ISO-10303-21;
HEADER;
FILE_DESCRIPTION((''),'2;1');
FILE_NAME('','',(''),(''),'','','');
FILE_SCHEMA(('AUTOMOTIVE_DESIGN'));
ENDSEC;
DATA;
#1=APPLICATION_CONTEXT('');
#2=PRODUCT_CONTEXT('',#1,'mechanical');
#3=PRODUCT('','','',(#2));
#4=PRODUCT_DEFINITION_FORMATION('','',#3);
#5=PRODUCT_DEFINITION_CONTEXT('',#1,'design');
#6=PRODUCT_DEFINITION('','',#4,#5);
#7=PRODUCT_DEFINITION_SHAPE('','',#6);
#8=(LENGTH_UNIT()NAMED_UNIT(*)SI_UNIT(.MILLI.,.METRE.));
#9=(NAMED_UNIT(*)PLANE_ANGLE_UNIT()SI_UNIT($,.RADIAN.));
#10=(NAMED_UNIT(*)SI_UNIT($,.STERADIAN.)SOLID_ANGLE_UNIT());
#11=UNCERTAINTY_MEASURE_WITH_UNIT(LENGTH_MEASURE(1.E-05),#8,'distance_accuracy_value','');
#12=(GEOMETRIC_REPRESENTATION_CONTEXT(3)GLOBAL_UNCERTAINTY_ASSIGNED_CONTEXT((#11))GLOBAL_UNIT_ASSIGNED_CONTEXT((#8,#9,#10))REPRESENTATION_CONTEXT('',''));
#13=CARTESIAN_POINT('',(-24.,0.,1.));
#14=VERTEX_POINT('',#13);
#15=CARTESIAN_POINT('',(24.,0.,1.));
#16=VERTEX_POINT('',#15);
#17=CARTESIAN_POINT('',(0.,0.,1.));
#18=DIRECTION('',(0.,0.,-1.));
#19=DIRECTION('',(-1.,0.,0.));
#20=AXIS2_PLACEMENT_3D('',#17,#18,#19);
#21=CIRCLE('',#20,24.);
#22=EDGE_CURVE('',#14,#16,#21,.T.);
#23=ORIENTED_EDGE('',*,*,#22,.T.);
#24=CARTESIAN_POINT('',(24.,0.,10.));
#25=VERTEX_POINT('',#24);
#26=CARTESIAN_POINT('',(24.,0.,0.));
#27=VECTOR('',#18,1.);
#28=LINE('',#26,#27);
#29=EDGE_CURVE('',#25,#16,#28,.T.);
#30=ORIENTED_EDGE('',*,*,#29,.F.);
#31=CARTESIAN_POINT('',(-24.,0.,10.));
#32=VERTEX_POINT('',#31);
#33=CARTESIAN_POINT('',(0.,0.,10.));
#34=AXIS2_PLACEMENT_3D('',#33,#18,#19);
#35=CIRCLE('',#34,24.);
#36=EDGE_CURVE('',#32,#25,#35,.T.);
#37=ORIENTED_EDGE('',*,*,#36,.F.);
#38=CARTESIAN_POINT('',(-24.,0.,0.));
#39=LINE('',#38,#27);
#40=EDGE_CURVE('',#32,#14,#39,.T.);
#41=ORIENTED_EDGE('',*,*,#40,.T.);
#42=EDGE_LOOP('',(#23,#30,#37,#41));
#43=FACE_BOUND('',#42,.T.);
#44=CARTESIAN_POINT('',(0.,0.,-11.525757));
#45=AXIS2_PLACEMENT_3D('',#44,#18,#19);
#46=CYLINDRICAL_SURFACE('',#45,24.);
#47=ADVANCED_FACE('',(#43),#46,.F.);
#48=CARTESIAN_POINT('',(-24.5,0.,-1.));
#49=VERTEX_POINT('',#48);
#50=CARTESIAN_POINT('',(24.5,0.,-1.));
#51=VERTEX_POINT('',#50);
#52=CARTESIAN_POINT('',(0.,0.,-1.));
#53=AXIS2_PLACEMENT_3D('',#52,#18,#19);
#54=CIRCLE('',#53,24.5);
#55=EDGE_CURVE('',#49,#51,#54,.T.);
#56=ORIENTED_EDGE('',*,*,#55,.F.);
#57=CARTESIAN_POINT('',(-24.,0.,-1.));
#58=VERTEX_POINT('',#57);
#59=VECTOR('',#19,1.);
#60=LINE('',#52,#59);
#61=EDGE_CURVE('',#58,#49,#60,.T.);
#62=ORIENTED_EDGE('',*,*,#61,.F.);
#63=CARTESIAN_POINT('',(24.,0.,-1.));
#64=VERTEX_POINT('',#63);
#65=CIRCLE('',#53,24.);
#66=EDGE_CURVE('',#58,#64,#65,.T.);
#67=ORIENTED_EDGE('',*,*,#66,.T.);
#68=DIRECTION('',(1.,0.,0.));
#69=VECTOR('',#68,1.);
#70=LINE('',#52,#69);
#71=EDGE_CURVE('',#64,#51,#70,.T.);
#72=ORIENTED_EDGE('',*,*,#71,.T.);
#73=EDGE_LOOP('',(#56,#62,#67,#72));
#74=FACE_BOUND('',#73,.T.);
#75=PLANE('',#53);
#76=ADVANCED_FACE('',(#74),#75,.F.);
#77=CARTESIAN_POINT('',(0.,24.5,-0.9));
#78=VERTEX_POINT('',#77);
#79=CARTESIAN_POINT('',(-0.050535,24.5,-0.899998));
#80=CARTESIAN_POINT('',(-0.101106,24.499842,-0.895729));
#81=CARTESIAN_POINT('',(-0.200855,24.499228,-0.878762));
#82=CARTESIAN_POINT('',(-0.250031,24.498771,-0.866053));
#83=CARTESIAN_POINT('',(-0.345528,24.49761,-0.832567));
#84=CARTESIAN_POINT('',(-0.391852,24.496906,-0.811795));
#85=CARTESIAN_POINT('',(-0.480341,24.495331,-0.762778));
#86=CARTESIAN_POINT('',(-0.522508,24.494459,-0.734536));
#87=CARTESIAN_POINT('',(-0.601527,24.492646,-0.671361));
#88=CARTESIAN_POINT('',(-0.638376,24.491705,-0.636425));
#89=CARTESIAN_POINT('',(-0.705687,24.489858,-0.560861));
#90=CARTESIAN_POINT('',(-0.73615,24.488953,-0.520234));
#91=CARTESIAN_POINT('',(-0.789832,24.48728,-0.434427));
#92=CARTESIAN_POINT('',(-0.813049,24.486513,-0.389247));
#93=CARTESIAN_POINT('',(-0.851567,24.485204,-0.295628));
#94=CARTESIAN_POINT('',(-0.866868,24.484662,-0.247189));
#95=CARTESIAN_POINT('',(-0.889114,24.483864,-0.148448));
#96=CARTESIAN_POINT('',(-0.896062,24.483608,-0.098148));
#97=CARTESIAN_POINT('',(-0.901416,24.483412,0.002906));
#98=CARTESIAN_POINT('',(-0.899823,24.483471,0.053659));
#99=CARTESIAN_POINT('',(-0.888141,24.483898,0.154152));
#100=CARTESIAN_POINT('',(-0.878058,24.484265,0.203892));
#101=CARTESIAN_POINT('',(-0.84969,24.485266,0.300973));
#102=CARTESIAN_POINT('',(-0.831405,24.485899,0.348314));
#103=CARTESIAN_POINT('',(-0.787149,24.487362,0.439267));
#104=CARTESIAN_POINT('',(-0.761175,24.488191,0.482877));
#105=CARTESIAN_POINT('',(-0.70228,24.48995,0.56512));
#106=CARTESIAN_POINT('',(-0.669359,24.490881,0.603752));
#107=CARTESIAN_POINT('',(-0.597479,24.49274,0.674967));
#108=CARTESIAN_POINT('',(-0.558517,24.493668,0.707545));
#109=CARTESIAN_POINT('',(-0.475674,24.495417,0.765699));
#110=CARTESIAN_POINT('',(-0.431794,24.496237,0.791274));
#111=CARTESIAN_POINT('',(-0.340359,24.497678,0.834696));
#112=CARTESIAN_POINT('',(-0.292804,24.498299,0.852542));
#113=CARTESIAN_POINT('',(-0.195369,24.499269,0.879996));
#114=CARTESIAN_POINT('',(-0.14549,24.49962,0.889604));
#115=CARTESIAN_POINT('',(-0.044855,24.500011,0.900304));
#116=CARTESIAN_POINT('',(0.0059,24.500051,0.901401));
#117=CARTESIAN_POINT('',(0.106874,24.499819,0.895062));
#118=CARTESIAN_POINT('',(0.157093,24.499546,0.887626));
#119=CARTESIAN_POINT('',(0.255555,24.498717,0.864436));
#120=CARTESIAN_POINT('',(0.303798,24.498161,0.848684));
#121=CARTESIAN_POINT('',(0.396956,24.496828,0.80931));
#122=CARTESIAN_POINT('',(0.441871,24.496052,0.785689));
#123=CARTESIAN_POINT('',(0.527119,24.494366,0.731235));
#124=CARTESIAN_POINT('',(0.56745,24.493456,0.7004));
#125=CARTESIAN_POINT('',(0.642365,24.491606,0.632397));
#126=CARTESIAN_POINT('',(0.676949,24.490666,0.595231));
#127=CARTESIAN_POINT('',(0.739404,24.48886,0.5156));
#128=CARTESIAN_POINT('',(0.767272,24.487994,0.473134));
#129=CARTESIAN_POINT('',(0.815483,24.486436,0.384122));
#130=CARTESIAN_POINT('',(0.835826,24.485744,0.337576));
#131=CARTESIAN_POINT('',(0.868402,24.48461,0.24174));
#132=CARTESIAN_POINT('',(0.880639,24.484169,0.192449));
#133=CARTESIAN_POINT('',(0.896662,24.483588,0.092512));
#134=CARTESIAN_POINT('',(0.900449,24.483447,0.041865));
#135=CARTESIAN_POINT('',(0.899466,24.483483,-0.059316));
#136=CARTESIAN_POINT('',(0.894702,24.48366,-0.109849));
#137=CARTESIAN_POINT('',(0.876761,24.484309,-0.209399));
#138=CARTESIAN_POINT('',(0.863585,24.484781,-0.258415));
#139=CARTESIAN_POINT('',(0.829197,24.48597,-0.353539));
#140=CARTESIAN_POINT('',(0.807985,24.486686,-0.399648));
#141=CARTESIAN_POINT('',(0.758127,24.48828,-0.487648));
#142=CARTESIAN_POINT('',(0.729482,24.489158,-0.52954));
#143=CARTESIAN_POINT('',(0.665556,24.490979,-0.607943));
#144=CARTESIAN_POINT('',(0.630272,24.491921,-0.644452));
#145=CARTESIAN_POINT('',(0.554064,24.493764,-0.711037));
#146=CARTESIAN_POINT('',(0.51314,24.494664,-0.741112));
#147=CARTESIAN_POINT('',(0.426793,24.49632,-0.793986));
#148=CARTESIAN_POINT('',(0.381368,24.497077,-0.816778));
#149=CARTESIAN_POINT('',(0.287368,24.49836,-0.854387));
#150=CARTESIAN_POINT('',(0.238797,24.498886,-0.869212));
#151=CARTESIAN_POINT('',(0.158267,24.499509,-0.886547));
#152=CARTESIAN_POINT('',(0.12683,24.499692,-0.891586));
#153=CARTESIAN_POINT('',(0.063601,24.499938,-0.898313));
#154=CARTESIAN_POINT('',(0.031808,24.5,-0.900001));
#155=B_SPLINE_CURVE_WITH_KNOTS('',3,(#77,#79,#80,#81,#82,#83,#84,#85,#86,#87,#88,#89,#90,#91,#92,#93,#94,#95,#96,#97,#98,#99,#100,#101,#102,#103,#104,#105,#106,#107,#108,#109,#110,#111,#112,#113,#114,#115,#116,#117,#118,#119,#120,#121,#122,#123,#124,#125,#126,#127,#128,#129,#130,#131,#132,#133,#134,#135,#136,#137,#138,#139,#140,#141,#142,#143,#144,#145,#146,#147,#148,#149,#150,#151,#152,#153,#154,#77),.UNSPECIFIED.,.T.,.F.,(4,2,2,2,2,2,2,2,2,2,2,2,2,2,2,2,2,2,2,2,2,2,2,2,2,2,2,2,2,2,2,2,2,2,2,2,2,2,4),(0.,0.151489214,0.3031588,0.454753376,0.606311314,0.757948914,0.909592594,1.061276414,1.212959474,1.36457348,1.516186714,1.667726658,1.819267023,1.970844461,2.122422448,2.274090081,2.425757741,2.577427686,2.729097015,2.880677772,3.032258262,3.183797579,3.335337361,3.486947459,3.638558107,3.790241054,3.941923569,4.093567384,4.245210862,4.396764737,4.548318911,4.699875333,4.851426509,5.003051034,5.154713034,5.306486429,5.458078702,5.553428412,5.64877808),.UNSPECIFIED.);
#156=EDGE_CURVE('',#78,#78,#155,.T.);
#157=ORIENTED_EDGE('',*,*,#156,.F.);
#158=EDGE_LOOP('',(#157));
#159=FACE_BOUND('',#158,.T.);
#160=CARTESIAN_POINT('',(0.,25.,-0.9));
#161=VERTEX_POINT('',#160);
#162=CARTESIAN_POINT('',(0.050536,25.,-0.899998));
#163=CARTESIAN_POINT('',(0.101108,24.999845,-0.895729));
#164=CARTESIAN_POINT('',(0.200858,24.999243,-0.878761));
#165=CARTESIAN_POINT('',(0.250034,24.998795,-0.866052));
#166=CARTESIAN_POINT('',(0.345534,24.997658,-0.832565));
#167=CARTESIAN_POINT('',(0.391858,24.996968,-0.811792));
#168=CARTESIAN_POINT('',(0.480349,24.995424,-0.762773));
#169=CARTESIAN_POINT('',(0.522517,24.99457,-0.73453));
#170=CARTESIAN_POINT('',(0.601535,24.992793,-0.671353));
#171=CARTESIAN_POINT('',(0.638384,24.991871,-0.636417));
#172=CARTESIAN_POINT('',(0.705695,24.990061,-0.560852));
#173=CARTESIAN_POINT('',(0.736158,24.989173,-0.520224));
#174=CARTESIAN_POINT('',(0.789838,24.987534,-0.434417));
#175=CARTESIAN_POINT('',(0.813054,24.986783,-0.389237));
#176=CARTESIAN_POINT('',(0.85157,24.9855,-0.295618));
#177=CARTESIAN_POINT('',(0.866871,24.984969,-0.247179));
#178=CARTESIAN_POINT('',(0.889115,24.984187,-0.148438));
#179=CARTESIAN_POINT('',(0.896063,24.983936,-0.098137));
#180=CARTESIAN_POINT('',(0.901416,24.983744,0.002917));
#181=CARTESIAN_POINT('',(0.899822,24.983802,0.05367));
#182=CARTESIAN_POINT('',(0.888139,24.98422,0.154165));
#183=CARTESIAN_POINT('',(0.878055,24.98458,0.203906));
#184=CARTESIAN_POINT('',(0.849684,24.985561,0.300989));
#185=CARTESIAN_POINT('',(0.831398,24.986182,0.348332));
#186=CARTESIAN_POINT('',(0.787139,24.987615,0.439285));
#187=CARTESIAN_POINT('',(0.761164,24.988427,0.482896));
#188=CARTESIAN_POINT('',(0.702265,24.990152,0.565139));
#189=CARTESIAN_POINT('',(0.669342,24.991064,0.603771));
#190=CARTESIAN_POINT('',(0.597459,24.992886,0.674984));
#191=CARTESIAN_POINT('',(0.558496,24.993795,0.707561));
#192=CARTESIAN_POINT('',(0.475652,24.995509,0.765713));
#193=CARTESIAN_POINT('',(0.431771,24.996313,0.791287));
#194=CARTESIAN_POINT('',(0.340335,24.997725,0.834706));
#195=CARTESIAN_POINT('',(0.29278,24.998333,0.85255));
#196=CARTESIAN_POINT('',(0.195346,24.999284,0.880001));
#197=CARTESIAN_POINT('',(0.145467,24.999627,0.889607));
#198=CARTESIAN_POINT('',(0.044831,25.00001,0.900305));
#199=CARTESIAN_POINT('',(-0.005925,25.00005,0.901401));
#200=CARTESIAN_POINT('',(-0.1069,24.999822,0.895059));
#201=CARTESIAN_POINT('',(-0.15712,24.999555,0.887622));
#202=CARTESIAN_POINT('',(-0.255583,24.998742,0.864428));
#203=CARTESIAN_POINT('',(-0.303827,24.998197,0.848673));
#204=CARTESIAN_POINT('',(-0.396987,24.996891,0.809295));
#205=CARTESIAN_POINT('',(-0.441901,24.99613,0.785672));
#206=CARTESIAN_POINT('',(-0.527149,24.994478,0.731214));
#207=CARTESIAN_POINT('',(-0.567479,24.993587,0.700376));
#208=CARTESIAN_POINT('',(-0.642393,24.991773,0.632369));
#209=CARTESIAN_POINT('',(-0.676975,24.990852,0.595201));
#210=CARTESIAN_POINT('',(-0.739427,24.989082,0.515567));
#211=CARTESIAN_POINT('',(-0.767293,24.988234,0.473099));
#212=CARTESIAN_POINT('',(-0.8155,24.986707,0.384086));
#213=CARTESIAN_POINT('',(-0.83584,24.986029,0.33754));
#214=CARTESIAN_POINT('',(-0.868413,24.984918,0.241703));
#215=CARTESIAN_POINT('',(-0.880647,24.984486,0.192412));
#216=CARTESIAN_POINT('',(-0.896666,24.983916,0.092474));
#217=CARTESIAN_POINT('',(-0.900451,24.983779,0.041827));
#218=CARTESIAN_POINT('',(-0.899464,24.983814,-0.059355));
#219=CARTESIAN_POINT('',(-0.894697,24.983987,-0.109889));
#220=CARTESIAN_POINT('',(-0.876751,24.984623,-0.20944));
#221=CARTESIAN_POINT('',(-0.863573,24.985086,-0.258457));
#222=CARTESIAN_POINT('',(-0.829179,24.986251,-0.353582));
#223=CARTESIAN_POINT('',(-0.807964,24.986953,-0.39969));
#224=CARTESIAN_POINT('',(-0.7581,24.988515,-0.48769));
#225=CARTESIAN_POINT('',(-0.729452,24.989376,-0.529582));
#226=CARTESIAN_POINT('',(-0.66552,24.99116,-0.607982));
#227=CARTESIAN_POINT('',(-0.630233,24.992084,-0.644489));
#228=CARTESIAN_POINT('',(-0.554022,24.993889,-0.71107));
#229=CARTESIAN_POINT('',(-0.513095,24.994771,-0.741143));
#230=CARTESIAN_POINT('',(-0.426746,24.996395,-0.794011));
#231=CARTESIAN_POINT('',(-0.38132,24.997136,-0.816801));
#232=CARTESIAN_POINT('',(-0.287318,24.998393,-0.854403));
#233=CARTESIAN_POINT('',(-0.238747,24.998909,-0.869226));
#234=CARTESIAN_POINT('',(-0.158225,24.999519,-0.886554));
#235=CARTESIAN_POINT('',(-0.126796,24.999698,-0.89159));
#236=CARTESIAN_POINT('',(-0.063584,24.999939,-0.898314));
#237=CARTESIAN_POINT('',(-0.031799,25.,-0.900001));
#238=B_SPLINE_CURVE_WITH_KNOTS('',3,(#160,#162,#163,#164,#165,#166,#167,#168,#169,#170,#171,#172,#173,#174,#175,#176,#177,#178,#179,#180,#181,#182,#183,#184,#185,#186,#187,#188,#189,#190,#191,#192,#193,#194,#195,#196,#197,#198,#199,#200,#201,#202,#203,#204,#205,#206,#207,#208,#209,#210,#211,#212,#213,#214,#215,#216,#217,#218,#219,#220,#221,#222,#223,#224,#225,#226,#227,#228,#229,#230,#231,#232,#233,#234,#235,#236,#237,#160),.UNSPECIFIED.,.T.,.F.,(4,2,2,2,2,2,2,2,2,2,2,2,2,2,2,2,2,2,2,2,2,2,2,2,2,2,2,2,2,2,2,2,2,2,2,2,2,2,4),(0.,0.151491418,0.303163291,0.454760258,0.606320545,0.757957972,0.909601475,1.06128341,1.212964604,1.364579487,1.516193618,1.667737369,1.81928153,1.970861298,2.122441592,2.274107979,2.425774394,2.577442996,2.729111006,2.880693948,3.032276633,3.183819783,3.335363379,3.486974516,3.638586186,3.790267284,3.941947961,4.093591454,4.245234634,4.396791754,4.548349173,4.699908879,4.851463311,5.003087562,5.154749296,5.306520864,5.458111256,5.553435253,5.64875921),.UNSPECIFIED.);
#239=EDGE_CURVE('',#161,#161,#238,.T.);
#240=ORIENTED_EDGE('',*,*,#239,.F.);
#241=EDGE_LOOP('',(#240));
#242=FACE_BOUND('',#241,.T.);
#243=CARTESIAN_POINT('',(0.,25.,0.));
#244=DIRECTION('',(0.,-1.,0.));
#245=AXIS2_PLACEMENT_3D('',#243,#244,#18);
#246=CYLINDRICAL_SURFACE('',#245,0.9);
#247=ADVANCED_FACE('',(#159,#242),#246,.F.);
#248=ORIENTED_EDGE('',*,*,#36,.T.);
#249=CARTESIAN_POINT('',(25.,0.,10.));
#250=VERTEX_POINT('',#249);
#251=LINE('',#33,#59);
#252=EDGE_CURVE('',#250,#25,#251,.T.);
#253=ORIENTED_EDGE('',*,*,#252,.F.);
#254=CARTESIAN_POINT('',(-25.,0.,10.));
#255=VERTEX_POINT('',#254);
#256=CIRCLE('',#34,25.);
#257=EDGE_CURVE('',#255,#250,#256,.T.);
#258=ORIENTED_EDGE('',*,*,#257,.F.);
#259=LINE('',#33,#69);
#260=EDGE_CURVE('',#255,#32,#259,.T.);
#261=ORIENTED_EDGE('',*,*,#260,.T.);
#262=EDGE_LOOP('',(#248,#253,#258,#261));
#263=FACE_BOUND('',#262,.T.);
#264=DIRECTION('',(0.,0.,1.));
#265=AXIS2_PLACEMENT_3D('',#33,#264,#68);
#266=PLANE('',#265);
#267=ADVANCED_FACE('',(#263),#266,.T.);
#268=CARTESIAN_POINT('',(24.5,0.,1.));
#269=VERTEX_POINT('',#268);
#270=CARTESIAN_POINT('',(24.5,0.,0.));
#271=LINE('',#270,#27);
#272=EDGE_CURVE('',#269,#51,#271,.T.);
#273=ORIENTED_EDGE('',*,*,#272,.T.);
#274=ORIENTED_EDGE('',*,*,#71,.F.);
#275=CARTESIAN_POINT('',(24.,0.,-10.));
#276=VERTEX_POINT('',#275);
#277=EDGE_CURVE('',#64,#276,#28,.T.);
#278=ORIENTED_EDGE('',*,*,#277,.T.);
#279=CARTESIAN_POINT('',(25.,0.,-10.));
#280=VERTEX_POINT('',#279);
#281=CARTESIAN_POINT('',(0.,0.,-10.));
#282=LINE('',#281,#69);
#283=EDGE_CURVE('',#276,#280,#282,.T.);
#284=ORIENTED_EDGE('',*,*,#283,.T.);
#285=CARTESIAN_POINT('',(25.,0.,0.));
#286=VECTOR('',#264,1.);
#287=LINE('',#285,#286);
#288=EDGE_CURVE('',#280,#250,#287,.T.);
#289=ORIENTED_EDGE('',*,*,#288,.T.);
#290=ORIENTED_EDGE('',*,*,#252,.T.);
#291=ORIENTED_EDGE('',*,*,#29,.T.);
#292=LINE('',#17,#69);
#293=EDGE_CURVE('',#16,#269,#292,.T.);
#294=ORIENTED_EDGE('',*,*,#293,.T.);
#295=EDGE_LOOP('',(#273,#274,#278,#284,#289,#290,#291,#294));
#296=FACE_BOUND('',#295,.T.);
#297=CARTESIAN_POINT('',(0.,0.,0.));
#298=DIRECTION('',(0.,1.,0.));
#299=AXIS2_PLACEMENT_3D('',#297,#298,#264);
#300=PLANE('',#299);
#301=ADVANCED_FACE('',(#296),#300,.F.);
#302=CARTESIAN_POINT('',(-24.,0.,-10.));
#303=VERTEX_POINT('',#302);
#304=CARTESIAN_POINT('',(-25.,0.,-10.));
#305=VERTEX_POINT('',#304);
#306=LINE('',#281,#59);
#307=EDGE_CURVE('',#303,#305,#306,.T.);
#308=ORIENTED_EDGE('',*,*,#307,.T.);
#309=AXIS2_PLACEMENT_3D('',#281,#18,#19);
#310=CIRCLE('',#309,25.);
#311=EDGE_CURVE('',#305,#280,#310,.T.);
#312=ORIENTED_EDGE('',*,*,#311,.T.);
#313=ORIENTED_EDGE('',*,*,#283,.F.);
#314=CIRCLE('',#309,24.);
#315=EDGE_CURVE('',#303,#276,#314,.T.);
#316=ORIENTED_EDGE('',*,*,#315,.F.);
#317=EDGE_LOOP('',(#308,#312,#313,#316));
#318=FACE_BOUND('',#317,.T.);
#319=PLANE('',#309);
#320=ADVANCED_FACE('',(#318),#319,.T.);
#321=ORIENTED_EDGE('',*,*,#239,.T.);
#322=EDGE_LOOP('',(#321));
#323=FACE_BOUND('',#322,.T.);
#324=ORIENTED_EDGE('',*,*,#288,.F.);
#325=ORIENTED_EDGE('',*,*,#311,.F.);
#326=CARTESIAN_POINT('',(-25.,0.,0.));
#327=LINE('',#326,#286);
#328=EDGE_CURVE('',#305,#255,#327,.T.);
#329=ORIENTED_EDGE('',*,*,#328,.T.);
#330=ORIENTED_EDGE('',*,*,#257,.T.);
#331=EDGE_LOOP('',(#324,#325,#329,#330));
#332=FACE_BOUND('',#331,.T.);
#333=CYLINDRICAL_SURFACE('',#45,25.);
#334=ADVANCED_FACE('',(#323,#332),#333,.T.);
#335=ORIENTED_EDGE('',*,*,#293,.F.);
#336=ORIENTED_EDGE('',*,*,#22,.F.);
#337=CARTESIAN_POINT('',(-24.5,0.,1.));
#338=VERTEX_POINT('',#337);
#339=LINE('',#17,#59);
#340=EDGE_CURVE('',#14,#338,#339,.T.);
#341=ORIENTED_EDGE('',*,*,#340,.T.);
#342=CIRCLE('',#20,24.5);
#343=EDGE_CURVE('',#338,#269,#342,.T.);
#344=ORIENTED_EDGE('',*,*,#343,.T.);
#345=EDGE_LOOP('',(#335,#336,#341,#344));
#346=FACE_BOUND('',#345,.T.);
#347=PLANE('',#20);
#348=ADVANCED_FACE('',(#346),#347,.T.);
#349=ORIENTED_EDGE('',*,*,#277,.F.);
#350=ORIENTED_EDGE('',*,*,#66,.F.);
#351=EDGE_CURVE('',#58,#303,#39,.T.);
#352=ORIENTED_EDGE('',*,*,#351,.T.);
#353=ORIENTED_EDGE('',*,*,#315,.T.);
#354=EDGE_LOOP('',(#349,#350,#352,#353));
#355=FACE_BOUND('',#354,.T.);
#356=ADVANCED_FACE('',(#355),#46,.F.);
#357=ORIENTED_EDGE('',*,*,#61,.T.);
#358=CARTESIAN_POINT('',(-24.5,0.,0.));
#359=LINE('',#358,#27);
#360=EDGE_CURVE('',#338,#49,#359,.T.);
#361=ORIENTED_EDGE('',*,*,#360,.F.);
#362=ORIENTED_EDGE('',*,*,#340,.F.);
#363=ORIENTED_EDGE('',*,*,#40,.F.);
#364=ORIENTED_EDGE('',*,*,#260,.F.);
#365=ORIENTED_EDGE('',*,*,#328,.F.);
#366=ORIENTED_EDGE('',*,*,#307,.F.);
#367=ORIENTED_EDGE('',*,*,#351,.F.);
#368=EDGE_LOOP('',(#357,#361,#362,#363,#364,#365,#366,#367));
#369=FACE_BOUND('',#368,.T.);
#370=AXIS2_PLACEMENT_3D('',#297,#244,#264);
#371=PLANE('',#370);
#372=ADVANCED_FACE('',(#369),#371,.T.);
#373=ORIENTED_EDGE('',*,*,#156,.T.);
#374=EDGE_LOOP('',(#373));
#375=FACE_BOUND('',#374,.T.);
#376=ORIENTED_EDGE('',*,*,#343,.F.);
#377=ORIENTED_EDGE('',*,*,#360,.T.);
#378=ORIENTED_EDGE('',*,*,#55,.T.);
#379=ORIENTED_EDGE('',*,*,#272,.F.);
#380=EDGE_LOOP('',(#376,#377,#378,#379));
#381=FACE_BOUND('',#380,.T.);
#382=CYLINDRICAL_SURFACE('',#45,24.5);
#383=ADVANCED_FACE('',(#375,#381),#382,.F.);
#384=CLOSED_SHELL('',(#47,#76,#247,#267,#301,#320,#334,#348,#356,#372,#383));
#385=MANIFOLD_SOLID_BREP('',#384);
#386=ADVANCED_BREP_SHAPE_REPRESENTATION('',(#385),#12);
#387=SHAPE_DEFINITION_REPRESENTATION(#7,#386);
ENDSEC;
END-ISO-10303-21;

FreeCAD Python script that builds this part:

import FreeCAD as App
import Part
import Sketcher
from FreeCAD import Vector
Q = App.Units.Quantity

doc = App.newDocument("Part")
body = doc.addObject("PartDesign::Body", "Body")

# Sketch on XZ plane
sketch1 = body.newObject("Sketcher::SketchObject", "Sketch")
sketch1.AttachmentSupport = (doc.getObject("XZ_Plane"), [""])
sketch1.MapMode = "FlatFace"
sketch1.addGeometry([
    Part.LineSegment(Vector(25, 10, 0), Vector(25, -10, 0)),  # 0
    Part.LineSegment(Vector(25, -10, 0), Vector(24, -10, 0)),  # 1
    Part.LineSegment(Vector(24, -10, 0), Vector(24, -1, 0)),  # 2
    Part.LineSegment(Vector(24, -1, 0), Vector(24.5, -1, 0)),  # 3
    Part.LineSegment(Vector(24.5, -1, 0), Vector(24.5, 1, 0)),  # 4
    Part.LineSegment(Vector(24.5, 1, 0), Vector(24, 1, 0)),  # 5
    Part.LineSegment(Vector(24, 1, 0), Vector(24, 10, 0)),  # 6
    Part.LineSegment(Vector(24, 10, 0), Vector(25, 10, 0)),  # 7
], False)
sketch1.addConstraint([
    Sketcher.Constraint("Coincident", 0, 2, 1, 1),
    Sketcher.Constraint("Coincident", 1, 2, 2, 1),
    Sketcher.Constraint("Coincident", 2, 2, 3, 1),
    Sketcher.Constraint("Coincident", 3, 2, 4, 1),
    Sketcher.Constraint("Coincident", 4, 2, 5, 1),
    Sketcher.Constraint("Coincident", 5, 2, 6, 1),
    Sketcher.Constraint("Coincident", 6, 2, 7, 1),
    Sketcher.Constraint("Coincident", 7, 2, 0, 1),
    Sketcher.Constraint("Vertical", 0),
    Sketcher.Constraint("Horizontal", 1),
    Sketcher.Constraint("Vertical", 2),
    Sketcher.Constraint("Horizontal", 3),
    Sketcher.Constraint("Vertical", 4),
    Sketcher.Constraint("Horizontal", 5),
    Sketcher.Constraint("Vertical", 6),
    Sketcher.Constraint("Horizontal", 7),
    Sketcher.Constraint("Symmetric", 2, 2, 5, 2, -1),
    Sketcher.Constraint("Equal", 2, 6),
    Sketcher.Constraint("DistanceX", 1, 2, 1, 1, Q("1 mm")),
    Sketcher.Constraint("DistanceY", 0, 2, 0, 1, Q("20 mm")),
    Sketcher.Constraint("DistanceY", 2, 1, 2, 2, Q("9 mm")),
    Sketcher.Constraint("DistanceX", 3, 1, 3, 2, Q("0.5 mm")),
    Sketcher.Constraint("DistanceX", -1, 1, 0, 2, Q("25 mm")),
])
revolution = body.newObject("PartDesign::Revolution", "Revolution")
revolution.Profile = sketch1
revolution.ReferenceAxis = (sketch1, ["V_Axis"])
revolution.Angle = 180

# Sketch on XZ plane
sketch2 = body.newObject("Sketcher::SketchObject", "Sketch001")
sketch2.AttachmentSupport = (doc.getObject("XZ_Plane"), [""])
sketch2.MapMode = "FlatFace"
sketch2.addGeometry(Part.Circle(Vector(0, 0, 0), Vector(0, 0, 1), 0.9), False)
sketch2.addConstraint([
    Sketcher.Constraint("Coincident", 0, 3, -1, 1),
    Sketcher.Constraint("Diameter", 0, Q("1.8 mm")),
])
pocket1 = body.newObject("PartDesign::Pocket", "Pocket")
pocket1.Profile = sketch2
pocket1.Type = "ThroughAll"

doc.recompute()
